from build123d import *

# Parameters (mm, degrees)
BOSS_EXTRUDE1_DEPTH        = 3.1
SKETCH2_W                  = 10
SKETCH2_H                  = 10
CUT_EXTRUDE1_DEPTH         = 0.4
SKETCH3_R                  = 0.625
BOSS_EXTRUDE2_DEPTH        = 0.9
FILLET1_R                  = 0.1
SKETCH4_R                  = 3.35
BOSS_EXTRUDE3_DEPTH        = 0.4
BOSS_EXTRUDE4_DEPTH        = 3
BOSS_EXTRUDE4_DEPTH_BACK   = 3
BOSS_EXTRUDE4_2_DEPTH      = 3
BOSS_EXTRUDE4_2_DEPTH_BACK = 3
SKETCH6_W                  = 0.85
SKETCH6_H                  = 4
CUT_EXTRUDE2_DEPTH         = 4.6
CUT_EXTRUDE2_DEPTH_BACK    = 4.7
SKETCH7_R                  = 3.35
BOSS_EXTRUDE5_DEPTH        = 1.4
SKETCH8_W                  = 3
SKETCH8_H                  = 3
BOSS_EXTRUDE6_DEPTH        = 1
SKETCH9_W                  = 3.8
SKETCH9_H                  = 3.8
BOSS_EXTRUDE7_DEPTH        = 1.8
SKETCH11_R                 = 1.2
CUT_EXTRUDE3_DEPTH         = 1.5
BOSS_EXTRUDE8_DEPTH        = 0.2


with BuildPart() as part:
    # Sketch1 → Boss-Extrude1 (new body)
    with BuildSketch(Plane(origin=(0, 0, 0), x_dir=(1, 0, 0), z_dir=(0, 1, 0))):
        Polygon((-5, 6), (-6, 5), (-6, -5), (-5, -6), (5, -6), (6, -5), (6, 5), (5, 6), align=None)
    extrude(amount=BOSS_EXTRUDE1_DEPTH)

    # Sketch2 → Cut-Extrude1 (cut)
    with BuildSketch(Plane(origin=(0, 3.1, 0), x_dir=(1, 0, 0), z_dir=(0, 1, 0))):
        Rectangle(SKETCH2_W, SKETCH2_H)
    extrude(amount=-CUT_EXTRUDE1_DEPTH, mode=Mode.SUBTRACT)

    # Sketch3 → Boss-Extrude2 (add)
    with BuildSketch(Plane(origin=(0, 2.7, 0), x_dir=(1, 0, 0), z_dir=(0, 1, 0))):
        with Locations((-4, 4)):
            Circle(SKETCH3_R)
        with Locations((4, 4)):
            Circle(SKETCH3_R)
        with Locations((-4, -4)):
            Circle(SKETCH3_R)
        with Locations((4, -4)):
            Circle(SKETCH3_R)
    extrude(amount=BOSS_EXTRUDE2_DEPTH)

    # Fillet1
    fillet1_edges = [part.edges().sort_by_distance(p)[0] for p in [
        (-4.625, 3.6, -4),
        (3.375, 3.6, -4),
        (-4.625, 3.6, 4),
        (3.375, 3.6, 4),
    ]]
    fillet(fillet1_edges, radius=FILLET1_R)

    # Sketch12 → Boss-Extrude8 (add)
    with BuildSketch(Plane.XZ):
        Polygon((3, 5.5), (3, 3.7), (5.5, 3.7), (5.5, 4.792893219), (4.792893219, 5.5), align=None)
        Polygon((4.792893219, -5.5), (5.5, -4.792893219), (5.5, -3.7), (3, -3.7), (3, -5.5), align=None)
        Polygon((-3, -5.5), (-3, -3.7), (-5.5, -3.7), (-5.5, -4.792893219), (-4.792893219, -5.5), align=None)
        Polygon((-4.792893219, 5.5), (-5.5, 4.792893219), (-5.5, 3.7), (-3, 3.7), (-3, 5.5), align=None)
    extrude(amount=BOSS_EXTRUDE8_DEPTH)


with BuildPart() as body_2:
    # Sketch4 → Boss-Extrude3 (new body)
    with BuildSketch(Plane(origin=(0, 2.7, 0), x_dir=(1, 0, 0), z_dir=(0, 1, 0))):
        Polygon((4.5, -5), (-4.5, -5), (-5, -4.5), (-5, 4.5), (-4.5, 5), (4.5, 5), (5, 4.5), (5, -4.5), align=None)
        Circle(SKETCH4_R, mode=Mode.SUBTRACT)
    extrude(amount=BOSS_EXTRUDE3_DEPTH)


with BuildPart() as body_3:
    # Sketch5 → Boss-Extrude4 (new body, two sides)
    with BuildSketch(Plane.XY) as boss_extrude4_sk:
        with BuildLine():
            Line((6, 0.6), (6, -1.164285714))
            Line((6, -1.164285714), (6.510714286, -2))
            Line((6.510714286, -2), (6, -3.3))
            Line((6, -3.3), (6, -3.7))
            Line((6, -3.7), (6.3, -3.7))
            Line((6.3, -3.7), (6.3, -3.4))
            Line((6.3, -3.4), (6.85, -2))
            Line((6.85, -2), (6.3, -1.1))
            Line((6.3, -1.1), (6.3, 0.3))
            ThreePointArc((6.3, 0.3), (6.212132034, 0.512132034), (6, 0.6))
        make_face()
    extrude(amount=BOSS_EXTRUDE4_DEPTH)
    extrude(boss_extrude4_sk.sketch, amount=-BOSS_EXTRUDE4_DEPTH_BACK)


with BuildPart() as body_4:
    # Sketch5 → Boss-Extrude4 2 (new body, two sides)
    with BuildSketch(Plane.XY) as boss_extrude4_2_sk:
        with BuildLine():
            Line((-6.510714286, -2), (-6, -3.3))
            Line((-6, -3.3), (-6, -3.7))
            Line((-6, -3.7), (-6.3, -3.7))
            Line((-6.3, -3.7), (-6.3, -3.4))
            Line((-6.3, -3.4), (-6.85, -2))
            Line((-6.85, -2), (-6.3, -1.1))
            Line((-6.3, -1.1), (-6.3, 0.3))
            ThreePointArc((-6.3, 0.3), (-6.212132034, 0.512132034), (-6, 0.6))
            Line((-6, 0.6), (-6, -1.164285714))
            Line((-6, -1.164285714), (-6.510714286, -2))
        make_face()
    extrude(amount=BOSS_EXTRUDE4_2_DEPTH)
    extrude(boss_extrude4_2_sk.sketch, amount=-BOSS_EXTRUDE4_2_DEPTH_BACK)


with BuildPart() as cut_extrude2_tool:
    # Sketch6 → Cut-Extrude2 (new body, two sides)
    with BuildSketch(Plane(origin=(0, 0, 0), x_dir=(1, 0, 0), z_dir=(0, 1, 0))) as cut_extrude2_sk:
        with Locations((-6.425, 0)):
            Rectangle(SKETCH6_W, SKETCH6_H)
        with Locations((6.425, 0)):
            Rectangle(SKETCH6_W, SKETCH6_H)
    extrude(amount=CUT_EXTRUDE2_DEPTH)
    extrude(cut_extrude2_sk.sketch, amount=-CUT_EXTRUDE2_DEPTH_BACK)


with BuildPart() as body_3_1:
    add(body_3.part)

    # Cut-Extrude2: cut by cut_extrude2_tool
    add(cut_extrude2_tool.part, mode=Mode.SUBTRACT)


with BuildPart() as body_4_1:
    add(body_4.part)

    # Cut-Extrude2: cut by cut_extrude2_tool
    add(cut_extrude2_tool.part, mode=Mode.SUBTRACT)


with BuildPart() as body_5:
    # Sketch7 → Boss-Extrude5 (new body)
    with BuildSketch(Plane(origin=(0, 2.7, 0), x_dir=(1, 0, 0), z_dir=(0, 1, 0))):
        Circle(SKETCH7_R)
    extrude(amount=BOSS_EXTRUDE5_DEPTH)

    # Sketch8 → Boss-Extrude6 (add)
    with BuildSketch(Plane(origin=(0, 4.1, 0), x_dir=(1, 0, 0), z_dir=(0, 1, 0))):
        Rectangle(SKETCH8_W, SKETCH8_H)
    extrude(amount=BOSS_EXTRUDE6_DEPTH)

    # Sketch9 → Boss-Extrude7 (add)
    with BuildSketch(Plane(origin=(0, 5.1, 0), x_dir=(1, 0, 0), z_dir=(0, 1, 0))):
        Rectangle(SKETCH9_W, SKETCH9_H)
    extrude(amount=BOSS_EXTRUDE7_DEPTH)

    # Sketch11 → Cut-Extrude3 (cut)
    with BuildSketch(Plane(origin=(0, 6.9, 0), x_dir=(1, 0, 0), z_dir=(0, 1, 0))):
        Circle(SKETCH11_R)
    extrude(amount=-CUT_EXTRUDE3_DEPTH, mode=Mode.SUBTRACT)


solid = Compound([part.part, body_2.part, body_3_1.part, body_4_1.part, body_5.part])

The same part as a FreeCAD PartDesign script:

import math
import FreeCAD as App
import Part
import Sketcher
from FreeCAD import Vector


def edges_at(feature, points):
    """Names of the edges that pass closest to the given points."""
    edges = feature.Shape.Edges
    near = lambda p: min(range(len(edges)), key=lambda i: edges[i].distToShape(Part.Vertex(*p))[0])
    return sorted({f"Edge{near(p) + 1}" for p in points})


def add_polygon(sketch, points):
    """Adds a closed chain of lines whose ends are joined by coincident constraints."""
    first, n = sketch.GeometryCount, len(points)
    for a, b in zip(points, points[1:] + points[:1]):
        sketch.addGeometry(Part.LineSegment(App.Vector(*a, 0), App.Vector(*b, 0)), False)
    for i in range(n):
        sketch.addConstraint(Sketcher.Constraint("Coincident", first + i, 2, first + (i + 1) % n, 1))

doc = App.newDocument("Part")
params = doc.addObject("Spreadsheet::Sheet", "Params")
for row, (alias, value) in enumerate([
    ("sketch1_width", "10 mm"),
    ("pad1_length", "3.1 mm"),
    ("sketch2_width", "10 mm"),
    ("pocket1_length", "0.4 mm"),
    ("sketch3_diameter", "1.25 mm"),
    ("pad2_length", "0.9 mm"),
    ("fillet_radius", "0.1 mm"),
    ("sketch4_length", "1 mm"),
    ("sketch4_width", "2.5 mm"),
    ("sketch4_height", "1.8 mm"),
    ("pad3_length", "0.2 mm"),
    ("sketch5_diameter", "6.7 mm"),
    ("sketch5_width", "9 mm"),
    ("pad4_length", "0.4 mm"),
    ("sketch6_radius", "0.3 mm"),
    ("sketch6_height", "0.4 mm"),
    ("sketch6_height2", "1.4 mm"),
    ("pad5_length", "3 mm"),
    ("pad5_length2", "3 mm"),
    ("sketch7_radius", "0.3 mm"),
    ("sketch7_height", "1.4 mm"),
    ("sketch7_height2", "0.4 mm"),
    ("pad6_length", "3 mm"),
    ("pad6_length2", "3 mm"),
    ("sketch8_height", "4 mm"),
    ("sketch8_width", "0.85 mm"),
    ("pad7_length", "4.6 mm"),
    ("pad7_length2", "4.7 mm"),
    ("sketch9_diameter", "6.7 mm"),
    ("pad8_length", "1.4 mm"),
    ("sketch10_width", "3 mm"),
    ("pad9_length", "1 mm"),
    ("sketch11_width", "3.8 mm"),
    ("pad10_length", "1.8 mm"),
    ("sketch12_diameter", "2.4 mm"),
    ("pocket2_length", "1.5 mm"),
], start=1):
    params.set(f"A{row}", alias)
    params.set(f"B{row}", "=" + value)
    params.setAlias(f"B{row}", alias)

body = doc.addObject("PartDesign::Body", "Body")

sketch1 = body.newObject("Sketcher::SketchObject", "Sketch")
sketch1.AttachmentSupport = (doc.getObject("XZ_Plane"), [""])
sketch1.MapMode = "FlatFace"
add_polygon(sketch1, [(-5, -6), (-6, -5), (-6, 5), (-5, 6), (5, 6), (6, 5), (6, -5), (5, -6)])
sketch1.addConstraint([
    Sketcher.Constraint("Vertical", 1),
    Sketcher.Constraint("Horizontal", 3),
    Sketcher.Constraint("Vertical", 5),
    Sketcher.Constraint("Horizontal", 7),
    Sketcher.Constraint("Symmetric", 0, 2, 4, 2, -1, 1),
    Sketcher.Constraint("Symmetric", 2, 2, 6, 2, -1, 1),
    Sketcher.Constraint("Perpendicular", 0, 2),
    Sketcher.Constraint("Perpendicular", 2, 4),
    Sketcher.Constraint("Perpendicular", 4, 6),
    Sketcher.Constraint("Horizontal", 1, 2, 4, 2),
    Sketcher.Constraint("Vertical", 3, 2, 6, 2),
    Sketcher.Constraint("Equal", 7, 1),
    Sketcher.Constraint("DistanceX", 3, 1, 3, 2, 10.0),
    Sketcher.Constraint("DistanceX", 0, 2, -1, 1, 6.0),
])
sketch1.setExpression("Constraints[20]", "Params.sketch1_width")
pad1 = body.newObject("PartDesign::Pad", "Pad")
pad1.Profile = sketch1
pad1.setExpression("Length", "Params.pad1_length")
pad1.Reversed = True

sketch2 = body.newObject("Sketcher::SketchObject", "Sketch001")
sketch2.AttachmentSupport = (doc.getObject("XZ_Plane"), [""])
sketch2.MapMode = "FlatFace"
sketch2.AttachmentOffset = App.Placement(Vector(0, 0, -3.1), App.Rotation())
add_polygon(sketch2, [(-5, -5), (-5, 5), (5, 5), (5, -5)])
sketch2.addConstraint([
    Sketcher.Constraint("Vertical", 0),
    Sketcher.Constraint("Horizontal", 1),
    Sketcher.Constraint("Vertical", 2),
    Sketcher.Constraint("Horizontal", 3),
    Sketcher.Constraint("Symmetric", 0, 2, 2, 2, -1, 1),
    Sketcher.Constraint("Equal", 3, 0),
    Sketcher.Constraint("DistanceX", 1, 1, 1, 2, 10.0),
])
sketch2.setExpression("Constraints[10]", "Params.sketch2_width")
pocket1 = body.newObject("PartDesign::Pocket", "Pocket")
pocket1.Profile = sketch2
pocket1.setExpression("Length", "Params.pocket1_length")
pocket1.Reversed = True

sketch3 = body.newObject("Sketcher::SketchObject", "Sketch002")
sketch3.AttachmentSupport = (doc.getObject("XZ_Plane"), [""])
sketch3.MapMode = "FlatFace"
sketch3.AttachmentOffset = App.Placement(Vector(0, 0, -2.7), App.Rotation())
sketch3.addGeometry([
    Part.Circle(Vector(-4, -4, 0), Vector(0, 0, 1), 0.6),
    Part.Circle(Vector(4, -4, 0), Vector(0, 0, 1), 0.6),
    Part.Circle(Vector(-4, 4, 0), Vector(0, 0, 1), 0.6),
    Part.Circle(Vector(4, 4, 0), Vector(0, 0, 1), 0.6),
], False)
sketch3.addConstraint([
    Sketcher.Constraint("Equal", 0, 1),
    Sketcher.Constraint("Equal", 1, 2),
    Sketcher.Constraint("Equal", 2, 3),
    Sketcher.Constraint("Symmetric", 1, 3, 2, 3, -1, 1),
    Sketcher.Constraint("Symmetric", 0, 3, 3, 3, -1, 1),
    Sketcher.Constraint("Symmetric", 0, 3, 1, 3, -2),
    Sketcher.Constraint("Diameter", 0, 1.25),
    Sketcher.Constraint("DistanceX", 0, 3, -1, 1, 4.0),
    Sketcher.Constraint("DistanceY", 0, 3, -1, 1, 4.0),
])
sketch3.setExpression("Constraints[6]", "Params.sketch3_diameter")
pad2 = body.newObject("PartDesign::Pad", "Pad001")
pad2.Profile = sketch3
pad2.setExpression("Length", "Params.pad2_length")
pad2.Reversed = True
doc.recompute()

fillet = body.newObject("PartDesign::Fillet", "Fillet")
fillet.Base = (pad2, edges_at(pad2, [
    (-4.625, 3.6, -4),
    (3.375, 3.6, -4),
    (-4.625, 3.6, 4),
    (3.375, 3.6, 4),
]))
fillet.setExpression("Radius", "Params.fillet_radius")

sketch4 = body.newObject("Sketcher::SketchObject", "Sketch003")
sketch4.AttachmentSupport = (doc.getObject("XZ_Plane"), [""])
sketch4.MapMode = "FlatFace"
add_polygon(sketch4, [(3, 5.5), (3, 3.7), (5.5, 3.7), (5.5, 4.8), (4.8, 5.5)])
add_polygon(sketch4, [(4.8, -5.5), (5.5, -4.8), (5.5, -3.7), (3, -3.7), (3, -5.5)])
add_polygon(sketch4, [(-3, -5.5), (-3, -3.7), (-5.5, -3.7), (-5.5, -4.8), (-4.8, -5.5)])
add_polygon(sketch4, [(-4.8, 5.5), (-5.5, 4.8), (-5.5, 3.7), (-3, 3.7), (-3, 5.5)])
sketch4.addConstraint([
    Sketcher.Constraint("Vertical", 0),
    Sketcher.Constraint("Horizontal", 1),
    Sketcher.Constraint("Vertical", 2),
    Sketcher.Constraint("Horizontal", 4),
    Sketcher.Constraint("Vertical", 6),
    Sketcher.Constraint("Horizontal", 7),
    Sketcher.Constraint("Vertical", 8),
    Sketcher.Constraint("Horizontal", 9),
    Sketcher.Constraint("Vertical", 10),
    Sketcher.Constraint("Horizontal", 11),
    Sketcher.Constraint("Vertical", 12),
    Sketcher.Constraint("Horizontal", 14),
    Sketcher.Constraint("Vertical", 16),
    Sketcher.Constraint("Horizontal", 17),
    Sketcher.Constraint("Vertical", 18),
    Sketcher.Constraint("Horizontal", 19),
    Sketcher.Constraint("Symmetric", 0, 2, 10, 2, -1, 1),
    Sketcher.Constraint("Symmetric", 2, 2, 12, 2, -1, 1),
    Sketcher.Constraint("Symmetric", 3, 2, 13, 2, -1, 1),
    Sketcher.Constraint("Symmetric", 5, 2, 15, 2, -1, 1),
    Sketcher.Constraint("Symmetric", 7, 2, 17, 2, -1, 1),
    Sketcher.Constraint("Symmetric", 9, 2, 19, 2, -1, 1),
    Sketcher.Constraint("Symmetric", 7, 2, 10, 2, -2),
    Sketcher.Constraint("Symmetric", 5, 2, 12, 2, -2),
    Sketcher.Constraint("Symmetric", 9, 2, 13, 2, -2),
    Sketcher.Constraint("Perpendicular", 3, 5),
    Sketcher.Constraint("Distance", 3, 1.0),
    Sketcher.Constraint("DistanceX", 1, 1, 1, 2, 2.5),
    Sketcher.Constraint("DistanceY", 0, 2, 0, 1, 1.8),
    Sketcher.Constraint("DistanceX", -1, 1, 0, 2, 3.0),
    Sketcher.Constraint("DistanceY", -1, 1, 0, 2, 3.7),
])
sketch4.setExpression("Constraints[46]", "Params.sketch4_length")
sketch4.setExpression("Constraints[47]", "Params.sketch4_width")
sketch4.setExpression("Constraints[48]", "Params.sketch4_height")
pad3 = body.newObject("PartDesign::Pad", "Pad002")
pad3.Profile = sketch4
pad3.setExpression("Length", "Params.pad3_length")
body2 = doc.addObject("PartDesign::Body", "Body001")

sketch5 = body2.newObject("Sketcher::SketchObject", "Sketch004")
sketch5.AttachmentSupport = (doc.getObject("XZ_Plane001"), [""])
sketch5.MapMode = "FlatFace"
sketch5.AttachmentOffset = App.Placement(Vector(0, 0, -2.7), App.Rotation())
add_polygon(sketch5, [(-4.5, 5), (4.5, 5), (5, 4.5), (5, -4.5), (4.5, -5), (-4.5, -5), (-5, -4.5), (-5, 4.5)])
sketch5.addGeometry(Part.Circle(Vector(0, 0, 0), Vector(0, 0, 1), 3.4), False)
sketch5.addConstraint([
    Sketcher.Constraint("Horizontal", 0),
    Sketcher.Constraint("Vertical", 2),
    Sketcher.Constraint("Horizontal", 4),
    Sketcher.Constraint("Vertical", 6),
    Sketcher.Constraint("Coincident", 8, 3, -1, 1),
    Sketcher.Constraint("Symmetric", 0, 2, 4, 2, -1, 1),
    Sketcher.Constraint("Symmetric", 1, 2, 5, 2, -1, 1),
    Sketcher.Constraint("Perpendicular", 1, 3),
    Sketcher.Constraint("Perpendicular", 5, 7),
    Sketcher.Constraint("Horizontal", 2, 2, 5, 2),
    Sketcher.Constraint("Horizontal", 1, 2, 6, 2),
    Sketcher.Constraint("Vertical", 0, 2, 3, 2),
    Sketcher.Constraint("Equal", 4, 2),
    Sketcher.Constraint("Diameter", 8, 6.7),
    Sketcher.Constraint("DistanceX", 0, 1, 0, 2, 9.0),
    Sketcher.Constraint("DistanceY", -1, 1, 0, 2, 5.0),
])
sketch5.setExpression("Constraints[21]", "Params.sketch5_diameter")
sketch5.setExpression("Constraints[22]", "Params.sketch5_width")
pad4 = body2.newObject("PartDesign::Pad", "Pad003")
pad4.Profile = sketch5
pad4.setExpression("Length", "Params.pad4_length")
pad4.Reversed = True
body3 = doc.addObject("PartDesign::Body", "Body002")

sketch6 = body3.newObject("Sketcher::SketchObject", "Sketch005")
sketch6.AttachmentSupport = (doc.getObject("XY_Plane002"), [""])
sketch6.MapMode = "FlatFace"
sketch6.addGeometry([
    Part.LineSegment(Vector(6, 0.6, 0), Vector(6, -1.16, 0)),
    Part.LineSegment(Vector(6, -1.16, 0), Vector(6.51, -2, 0)),
    Part.LineSegment(Vector(6.51, -2, 0), Vector(6, -3.3, 0)),
    Part.LineSegment(Vector(6, -3.3, 0), Vector(6, -3.7, 0)),
    Part.LineSegment(Vector(6, -3.7, 0), Vector(6.3, -3.7, 0)),
    Part.LineSegment(Vector(6.3, -3.7, 0), Vector(6.3, -3.4, 0)),
    Part.LineSegment(Vector(6.3, -3.4, 0), Vector(6.85, -2, 0)),
    Part.LineSegment(Vector(6.85, -2, 0), Vector(6.3, -1.1, 0)),
    Part.LineSegment(Vector(6.3, -1.1, 0), Vector(6.3, 0.3, 0)),
    Part.ArcOfCircle(Part.Circle(Vector(6, 0.3, 0), Vector(0, 0, 1), 0.3), math.radians(0), math.radians(90)),
], False)
sketch6.addConstraint([
    Sketcher.Constraint("Coincident", 0, 2, 1, 1),
    Sketcher.Constraint("Coincident", 1, 2, 2, 1),
    Sketcher.Constraint("Coincident", 2, 2, 3, 1),
    Sketcher.Constraint("Coincident", 3, 2, 4, 1),
    Sketcher.Constraint("Coincident", 4, 2, 5, 1),
    Sketcher.Constraint("Coincident", 5, 2, 6, 1),
    Sketcher.Constraint("Coincident", 6, 2, 7, 1),
    Sketcher.Constraint("Coincident", 7, 2, 8, 1),
    Sketcher.Constraint("Tangent", 8, 2, 9, 1),
    Sketcher.Constraint("Coincident", 9, 2, 0, 1),
    Sketcher.Constraint("Vertical", 0),
    Sketcher.Constraint("Vertical", 3),
    Sketcher.Constraint("Horizontal", 4),
    Sketcher.Constraint("Vertical", 5),
    Sketcher.Constraint("Vertical", 8),
    Sketcher.Constraint("Parallel", 2, 6),
    Sketcher.Constraint("Parallel", 1, 7),
    Sketcher.Constraint("Horizontal", 1, 2, 6, 2),
    Sketcher.Constraint("Vertical", 9, 3, 0, 2),
    Sketcher.Constraint("Vertical", 0, 2, 2, 2),
    Sketcher.Constraint("Vertical", 5, 2, 7, 2),
    Sketcher.Constraint("Equal", 4, 5),
    Sketcher.Constraint("Radius", 9, 0.3),
    Sketcher.Constraint("DistanceY", 3, 2, 3, 1, 0.4),
    Sketcher.Constraint("DistanceY", 8, 1, 8, 2, 1.4),
    Sketcher.Constraint("DistanceX", -1, 1, 9, 3, 6.0),
    Sketcher.Constraint("DistanceY", 1, 2, -1, 1, 2.0),
    Sketcher.Constraint("DistanceY", 3, 2, 9, 3, 4.0),
    Sketcher.Constraint("DistanceY", -1, 1, 9, 3, 0.3),
    Sketcher.Constraint("DistanceX", -1, 1, 6, 2, 6.85),
])
sketch6.setExpression("Constraints[22]", "Params.sketch6_radius")
sketch6.setExpression("Constraints[23]", "Params.sketch6_height")
sketch6.setExpression("Constraints[24]", "Params.sketch6_height2")
pad5 = body3.newObject("PartDesign::Pad", "Pad004")
pad5.Profile = sketch6
pad5.Type = "TwoLengths"
pad5.setExpression("Length", "Params.pad5_length")
pad5.setExpression("Length2", "Params.pad5_length2")
body4 = doc.addObject("PartDesign::Body", "Body003")

sketch7 = body4.newObject("Sketcher::SketchObject", "Sketch006")
sketch7.AttachmentSupport = (doc.getObject("XY_Plane003"), [""])
sketch7.MapMode = "FlatFace"
sketch7.addGeometry([
    Part.LineSegment(Vector(-6, -3.3, 0), Vector(-6.51, -2, 0)),
    Part.LineSegment(Vector(-6.51, -2, 0), Vector(-6, -1.16, 0)),
    Part.LineSegment(Vector(-6, -1.16, 0), Vector(-6, 0.6, 0)),
    Part.ArcOfCircle(Part.Circle(Vector(-6, 0.3, 0), Vector(0, 0, 1), 0.3), math.radians(90), math.radians(180)),
    Part.LineSegment(Vector(-6.3, 0.3, 0), Vector(-6.3, -1.1, 0)),
    Part.LineSegment(Vector(-6.3, -1.1, 0), Vector(-6.85, -2, 0)),
    Part.LineSegment(Vector(-6.85, -2, 0), Vector(-6.3, -3.4, 0)),
    Part.LineSegment(Vector(-6.3, -3.4, 0), Vector(-6.3, -3.7, 0)),
    Part.LineSegment(Vector(-6.3, -3.7, 0), Vector(-6, -3.7, 0)),
    Part.LineSegment(Vector(-6, -3.7, 0), Vector(-6, -3.3, 0)),
], False)
sketch7.addConstraint([
    Sketcher.Constraint("Coincident", 0, 2, 1, 1),
    Sketcher.Constraint("Coincident", 1, 2, 2, 1),
    Sketcher.Constraint("Coincident", 2, 2, 3, 1),
    Sketcher.Constraint("Tangent", 3, 2, 4, 1),
    Sketcher.Constraint("Coincident", 4, 2, 5, 1),
    Sketcher.Constraint("Coincident", 5, 2, 6, 1),
    Sketcher.Constraint("Coincident", 6, 2, 7, 1),
    Sketcher.Constraint("Coincident", 7, 2, 8, 1),
    Sketcher.Constraint("Coincident", 8, 2, 9, 1),
    Sketcher.Constraint("Coincident", 9, 2, 0, 1),
    Sketcher.Constraint("Vertical", 2),
    Sketcher.Constraint("Vertical", 4),
    Sketcher.Constraint("Vertical", 7),
    Sketcher.Constraint("Horizontal", 8),
    Sketcher.Constraint("Vertical", 9),
    Sketcher.Constraint("Parallel", 1, 5),
    Sketcher.Constraint("Parallel", 0, 6),
    Sketcher.Constraint("Horizontal", 0, 2, 5, 2),
    Sketcher.Constraint("Vertical", 3, 3, 1, 2),
    Sketcher.Constraint("Vertical", 4, 2, 6, 2),
    Sketcher.Constraint("Vertical", 2, 2, 8, 2),
    Sketcher.Constraint("Equal", 8, 7),
    Sketcher.Constraint("Radius", 3, 0.3),
    Sketcher.Constraint("DistanceY", 4, 2, 4, 1, 1.4),
    Sketcher.Constraint("DistanceY", 9, 1, 9, 2, 0.4),
    Sketcher.Constraint("DistanceX", 3, 3, -1, 1, 6.0),
    Sketcher.Constraint("DistanceY", 0, 2, -1, 1, 2.0),
    Sketcher.Constraint("DistanceY", -1, 1, 3, 3, 0.3),
    Sketcher.Constraint("DistanceY", 6, 2, -1, 1, 3.4),
    Sketcher.Constraint("DistanceX", 5, 2, -1, 1, 6.85),
])
sketch7.setExpression("Constraints[22]", "Params.sketch7_radius")
sketch7.setExpression("Constraints[23]", "Params.sketch7_height")
sketch7.setExpression("Constraints[24]", "Params.sketch7_height2")
pad6 = body4.newObject("PartDesign::Pad", "Pad005")
pad6.Profile = sketch7
pad6.Type = "TwoLengths"
pad6.setExpression("Length", "Params.pad6_length")
pad6.setExpression("Length2", "Params.pad6_length2")
body5 = doc.addObject("PartDesign::Body", "Body004")
body5.AllowCompound = True

sketch8 = body5.newObject("Sketcher::SketchObject", "Sketch007")
sketch8.AttachmentSupport = (doc.getObject("XZ_Plane004"), [""])
sketch8.MapMode = "FlatFace"
add_polygon(sketch8, [(-6.8, -2), (-6.8, 2), (-6, 2), (-6, -2)])
add_polygon(sketch8, [(6, -2), (6, 2), (6.8, 2), (6.8, -2)])
sketch8.addConstraint([
    Sketcher.Constraint("Vertical", 0),
    Sketcher.Constraint("Horizontal", 1),
    Sketcher.Constraint("Vertical", 2),
    Sketcher.Constraint("Horizontal", 3),
    Sketcher.Constraint("Vertical", 4),
    Sketcher.Constraint("Horizontal", 5),
    Sketcher.Constraint("Vertical", 6),
    Sketcher.Constraint("Horizontal", 7),
    Sketcher.Constraint("Symmetric", 2, 2, 4, 2, -1, 1),
    Sketcher.Constraint("Symmetric", 0, 2, 6, 2, -1, 1),
    Sketcher.Constraint("Horizontal", 1, 2, 4, 2),
    Sketcher.Constraint("DistanceY", 0, 1, 0, 2, 4.0),
    Sketcher.Constraint("DistanceX", 1, 2, -1, 1, 6.0),
    Sketcher.Constraint("DistanceX", 1, 1, 1, 2, 0.85),
])
sketch8.setExpression("Constraints[19]", "Params.sketch8_height")
sketch8.setExpression("Constraints[21]", "Params.sketch8_width")
pad7 = body5.newObject("PartDesign::Pad", "Pad006")
pad7.Profile = sketch8
pad7.Type = "TwoLengths"
pad7.setExpression("Length", "Params.pad7_length")
pad7.setExpression("Length2", "Params.pad7_length2")
pad7.Reversed = True
body3.AllowCompound = True
doc.recompute()

body6 = doc.addObject("PartDesign::Body", "Body005")
body6.BaseFeature = body5
boolean = body3.newObject("PartDesign::Boolean", "Boolean")
boolean.Type = "Cut"
boolean.addObjects([body6])
doc.recompute()
body4.AllowCompound = True
doc.recompute()

boolean2 = body4.newObject("PartDesign::Boolean", "Boolean001")
boolean2.Type = "Cut"
boolean2.addObjects([body5])
body7 = doc.addObject("PartDesign::Body", "Body006")

sketch9 = body7.newObject("Sketcher::SketchObject", "Sketch008")
sketch9.AttachmentSupport = (doc.getObject("XZ_Plane006"), [""])
sketch9.MapMode = "FlatFace"
sketch9.AttachmentOffset = App.Placement(Vector(0, 0, -2.7), App.Rotation())
sketch9.addGeometry(Part.Circle(Vector(0, 0, 0), Vector(0, 0, 1), 3.4), False)
sketch9.addConstraint([
    Sketcher.Constraint("Coincident", 0, 3, -1, 1),
    Sketcher.Constraint("Diameter", 0, 6.7),
])
sketch9.setExpression("Constraints[1]", "Params.sketch9_diameter")
pad8 = body7.newObject("PartDesign::Pad", "Pad007")
pad8.Profile = sketch9
pad8.setExpression("Length", "Params.pad8_length")
pad8.Reversed = True

sketch10 = body7.newObject("Sketcher::SketchObject", "Sketch009")
sketch10.AttachmentSupport = (doc.getObject("XZ_Plane006"), [""])
sketch10.MapMode = "FlatFace"
sketch10.AttachmentOffset = App.Placement(Vector(0, 0, -4.1), App.Rotation())
add_polygon(sketch10, [(-1.5, -1.5), (-1.5, 1.5), (1.5, 1.5), (1.5, -1.5)])
sketch10.addConstraint([
    Sketcher.Constraint("Vertical", 0),
    Sketcher.Constraint("Horizontal", 1),
    Sketcher.Constraint("Vertical", 2),
    Sketcher.Constraint("Horizontal", 3),
    Sketcher.Constraint("Symmetric", 0, 2, 2, 2, -1, 1),
    Sketcher.Constraint("Equal", 3, 0),
    Sketcher.Constraint("DistanceX", 1, 1, 1, 2, 3.0),
])
sketch10.setExpression("Constraints[10]", "Params.sketch10_width")
pad9 = body7.newObject("PartDesign::Pad", "Pad008")
pad9.Profile = sketch10
pad9.setExpression("Length", "Params.pad9_length")
pad9.Reversed = True

sketch11 = body7.newObject("Sketcher::SketchObject", "Sketch010")
sketch11.AttachmentSupport = (doc.getObject("XZ_Plane006"), [""])
sketch11.MapMode = "FlatFace"
sketch11.AttachmentOffset = App.Placement(Vector(0, 0, -5.1), App.Rotation())
add_polygon(sketch11, [(-1.9, -1.9), (-1.9, 1.9), (1.9, 1.9), (1.9, -1.9)])
sketch11.addConstraint([
    Sketcher.Constraint("Vertical", 0),
    Sketcher.Constraint("Horizontal", 1),
    Sketcher.Constraint("Vertical", 2),
    Sketcher.Constraint("Horizontal", 3),
    Sketcher.Constraint("Symmetric", 0, 2, 2, 2, -1, 1),
    Sketcher.Constraint("Equal", 3, 0),
    Sketcher.Constraint("DistanceX", 1, 1, 1, 2, 3.8),
])
sketch11.setExpression("Constraints[10]", "Params.sketch11_width")
pad10 = body7.newObject("PartDesign::Pad", "Pad009")
pad10.Profile = sketch11
pad10.setExpression("Length", "Params.pad10_length")
pad10.Reversed = True

sketch12 = body7.newObject("Sketcher::SketchObject", "Sketch011")
sketch12.AttachmentSupport = (doc.getObject("XZ_Plane006"), [""])
sketch12.MapMode = "FlatFace"
sketch12.AttachmentOffset = App.Placement(Vector(0, 0, -6.9), App.Rotation())
sketch12.addGeometry(Part.Circle(Vector(0, 0, 0), Vector(0, 0, 1), 1.2), False)
sketch12.addConstraint([
    Sketcher.Constraint("Coincident", 0, 3, -1, 1),
    Sketcher.Constraint("Diameter", 0, 2.4),
])
sketch12.setExpression("Constraints[1]", "Params.sketch12_diameter")
pocket2 = body7.newObject("PartDesign::Pocket", "Pocket001")
pocket2.Profile = sketch12
pocket2.setExpression("Length", "Params.pocket2_length")
pocket2.Reversed = True

doc.recompute()
